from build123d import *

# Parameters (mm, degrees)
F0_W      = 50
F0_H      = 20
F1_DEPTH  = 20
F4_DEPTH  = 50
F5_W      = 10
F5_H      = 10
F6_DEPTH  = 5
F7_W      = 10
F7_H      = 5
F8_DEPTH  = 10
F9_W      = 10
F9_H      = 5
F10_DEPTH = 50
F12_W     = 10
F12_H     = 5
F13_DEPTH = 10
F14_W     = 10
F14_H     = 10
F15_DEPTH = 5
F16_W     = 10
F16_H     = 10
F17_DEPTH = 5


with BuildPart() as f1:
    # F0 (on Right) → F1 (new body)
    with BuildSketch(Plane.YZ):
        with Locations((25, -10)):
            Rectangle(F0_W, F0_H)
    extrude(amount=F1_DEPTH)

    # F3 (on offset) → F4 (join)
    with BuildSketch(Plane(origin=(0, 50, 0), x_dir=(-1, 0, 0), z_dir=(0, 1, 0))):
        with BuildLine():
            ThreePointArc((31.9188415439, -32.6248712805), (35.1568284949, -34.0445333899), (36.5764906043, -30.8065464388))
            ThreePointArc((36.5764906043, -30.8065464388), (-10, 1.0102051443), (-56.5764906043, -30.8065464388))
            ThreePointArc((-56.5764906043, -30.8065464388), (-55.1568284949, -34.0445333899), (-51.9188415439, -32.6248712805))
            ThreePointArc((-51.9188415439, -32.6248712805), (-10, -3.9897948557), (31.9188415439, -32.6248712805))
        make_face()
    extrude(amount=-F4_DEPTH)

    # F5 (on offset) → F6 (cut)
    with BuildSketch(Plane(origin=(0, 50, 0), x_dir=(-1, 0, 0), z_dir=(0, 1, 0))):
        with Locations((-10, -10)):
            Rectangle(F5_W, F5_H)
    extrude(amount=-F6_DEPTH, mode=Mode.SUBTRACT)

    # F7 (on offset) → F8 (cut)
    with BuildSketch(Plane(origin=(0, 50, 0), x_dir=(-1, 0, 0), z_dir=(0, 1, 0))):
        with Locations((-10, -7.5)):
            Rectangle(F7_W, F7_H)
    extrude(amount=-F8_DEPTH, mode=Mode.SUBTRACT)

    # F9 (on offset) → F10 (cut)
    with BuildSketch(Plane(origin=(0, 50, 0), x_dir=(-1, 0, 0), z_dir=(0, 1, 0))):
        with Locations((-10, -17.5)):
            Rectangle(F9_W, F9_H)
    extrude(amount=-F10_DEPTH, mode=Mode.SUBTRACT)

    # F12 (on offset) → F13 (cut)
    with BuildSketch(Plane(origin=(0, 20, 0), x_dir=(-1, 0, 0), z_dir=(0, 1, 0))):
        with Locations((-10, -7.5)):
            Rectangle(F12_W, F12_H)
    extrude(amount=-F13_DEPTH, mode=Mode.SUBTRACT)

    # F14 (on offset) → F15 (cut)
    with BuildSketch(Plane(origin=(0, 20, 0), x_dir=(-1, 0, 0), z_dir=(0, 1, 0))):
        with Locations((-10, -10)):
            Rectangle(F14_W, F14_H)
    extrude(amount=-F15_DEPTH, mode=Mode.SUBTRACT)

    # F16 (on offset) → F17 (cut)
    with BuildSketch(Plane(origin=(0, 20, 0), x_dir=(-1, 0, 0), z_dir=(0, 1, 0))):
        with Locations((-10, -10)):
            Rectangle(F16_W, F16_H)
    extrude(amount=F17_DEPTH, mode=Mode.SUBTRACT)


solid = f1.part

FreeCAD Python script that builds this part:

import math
import FreeCAD as App
import Part
import Sketcher
from FreeCAD import Vector


def add_polygon(sketch, points):
    """Adds a closed chain of lines whose ends are joined by coincident constraints."""
    first, n = sketch.GeometryCount, len(points)
    for a, b in zip(points, points[1:] + points[:1]):
        sketch.addGeometry(Part.LineSegment(App.Vector(*a, 0), App.Vector(*b, 0)), False)
    for i in range(n):
        sketch.addConstraint(Sketcher.Constraint("Coincident", first + i, 2, first + (i + 1) % n, 1))

doc = App.newDocument("Part")
body = doc.addObject("PartDesign::Body", "Body")

# Sketch on YZ plane
sketch1 = body.newObject("Sketcher::SketchObject", "Sketch")
sketch1.AttachmentSupport = (doc.getObject("YZ_Plane"), [""])
sketch1.MapMode = "FlatFace"
add_polygon(sketch1, [(0, 0), (0, -20), (50, -20), (50, 0)])  # lines 0-3
sketch1.addConstraint([
    Sketcher.Constraint("Vertical", 0),
    Sketcher.Constraint("Horizontal", 1),
    Sketcher.Constraint("Vertical", 2),
    Sketcher.Constraint("Horizontal", 3),
    Sketcher.Constraint("Coincident", 3, 2, -1, 1),
    Sketcher.Constraint("DistanceX", 1, 1, 1, 2, 50.0),
    Sketcher.Constraint("DistanceY", 0, 2, 0, 1, 20.0),
])
pad1 = body.newObject("PartDesign::Pad", "Pad")
pad1.Profile = sketch1
pad1.Length = 20

# Sketch on XZ plane
sketch2 = body.newObject("Sketcher::SketchObject", "Sketch001")
sketch2.AttachmentSupport = (doc.getObject("XZ_Plane"), [""])
sketch2.MapMode = "FlatFace"
sketch2.AttachmentOffset = App.Placement(Vector(0, 0, -50), App.Rotation())
sketch2.addGeometry([
    Part.ArcOfCircle(Part.Circle(Vector(-34.247666, -31.715709, 0), Vector(0, 0, 1), 2.5), math.radians(158.674554), math.radians(338.674554)),
    Part.ArcOfCircle(Part.Circle(Vector(10, -48.989795, 0), Vector(0, 0, 1), 50), math.radians(21.325446), math.radians(158.674554)),
    Part.ArcOfCircle(Part.Circle(Vector(54.247666, -31.715709, 0), Vector(0, 0, 1), 2.5), math.radians(-158.674554), math.radians(21.325446)),
    Part.ArcOfCircle(Part.Circle(Vector(10, -48.989795, 0), Vector(0, 0, 1), 45), math.radians(21.325446), math.radians(158.674554)),
], False)
sketch2.addConstraint([
    Sketcher.Constraint("Tangent", 0, 1, 1, 2),
    Sketcher.Constraint("Tangent", 1, 1, 2, 2),
    Sketcher.Constraint("Tangent", 2, 1, 3, 1),
    Sketcher.Constraint("Tangent", 3, 2, 0, 2),
    Sketcher.Constraint("Coincident", 3, 3, 1, 3),
    Sketcher.Constraint("Horizontal", 0, 3, 2, 3),
    Sketcher.Constraint("Radius", 1, 50.0),
    Sketcher.Constraint("Radius", 3, 45.0),
    Sketcher.Constraint("DistanceX", -1, 1, 1, 3, 10.0),
    Sketcher.Constraint("DistanceY", 0, 3, -1, 1, 31.715709),
    Sketcher.Constraint("DistanceX", 0, 1, -1, 1, 36.576491),
])
pad2 = body.newObject("PartDesign::Pad", "Pad001")
pad2.Profile = sketch2
pad2.Length = 50

# Sketch on XZ plane
sketch3 = body.newObject("Sketcher::SketchObject", "Sketch002")
sketch3.AttachmentSupport = (doc.getObject("XZ_Plane"), [""])
sketch3.MapMode = "FlatFace"
sketch3.AttachmentOffset = App.Placement(Vector(0, 0, -50), App.Rotation())
add_polygon(sketch3, [(15, -5), (15, -15), (5, -15), (5, -5)])  # lines 0-3
sketch3.addConstraint([
    Sketcher.Constraint("Vertical", 0),
    Sketcher.Constraint("Horizontal", 1),
    Sketcher.Constraint("Vertical", 2),
    Sketcher.Constraint("Horizontal", 3),
    Sketcher.Constraint("Equal", 3, 0),
    Sketcher.Constraint("DistanceX", 1, 2, 1, 1, 10.0),
    Sketcher.Constraint("DistanceX", -1, 1, 0, 2, 15.0),
    Sketcher.Constraint("DistanceY", 0, 2, -1, 1, 15.0),
])
pocket1 = body.newObject("PartDesign::Pocket", "Pocket")
pocket1.Profile = sketch3
pocket1.Length = 5
pocket1.Reversed = True

# Sketch on XZ plane
sketch4 = body.newObject("Sketcher::SketchObject", "Sketch003")
sketch4.AttachmentSupport = (doc.getObject("XZ_Plane"), [""])
sketch4.MapMode = "FlatFace"
sketch4.AttachmentOffset = App.Placement(Vector(0, 0, -50), App.Rotation())
add_polygon(sketch4, [(15, -5), (15, -10), (5, -10), (5, -5)])  # lines 0-3
sketch4.addConstraint([
    Sketcher.Constraint("Vertical", 0),
    Sketcher.Constraint("Horizontal", 1),
    Sketcher.Constraint("Vertical", 2),
    Sketcher.Constraint("Horizontal", 3),
    Sketcher.Constraint("DistanceX", 1, 2, 1, 1, 10.0),
    Sketcher.Constraint("DistanceY", 0, 2, 0, 1, 5.0),
    Sketcher.Constraint("DistanceX", -1, 1, 0, 2, 15.0),
    Sketcher.Constraint("DistanceY", 0, 2, -1, 1, 10.0),
])
pocket2 = body.newObject("PartDesign::Pocket", "Pocket001")
pocket2.Profile = sketch4
pocket2.Length = 10
pocket2.Reversed = True

# Sketch on XZ plane
sketch5 = body.newObject("Sketcher::SketchObject", "Sketch004")
sketch5.AttachmentSupport = (doc.getObject("XZ_Plane"), [""])
sketch5.MapMode = "FlatFace"
sketch5.AttachmentOffset = App.Placement(Vector(0, 0, -50), App.Rotation())
add_polygon(sketch5, [(15, -15), (15, -20), (5, -20), (5, -15)])  # lines 0-3
sketch5.addConstraint([
    Sketcher.Constraint("Vertical", 0),
    Sketcher.Constraint("Horizontal", 1),
    Sketcher.Constraint("Vertical", 2),
    Sketcher.Constraint("Horizontal", 3),
    Sketcher.Constraint("DistanceX", 1, 2, 1, 1, 10.0),
    Sketcher.Constraint("DistanceY", 0, 2, 0, 1, 5.0),
    Sketcher.Constraint("DistanceX", -1, 1, 0, 2, 15.0),
    Sketcher.Constraint("DistanceY", 0, 2, -1, 1, 20.0),
])
pocket3 = body.newObject("PartDesign::Pocket", "Pocket002")
pocket3.Profile = sketch5
pocket3.Length = 50
pocket3.Reversed = True

# Sketch on XZ plane
sketch6 = body.newObject("Sketcher::SketchObject", "Sketch005")
sketch6.AttachmentSupport = (doc.getObject("XZ_Plane"), [""])
sketch6.MapMode = "FlatFace"
sketch6.AttachmentOffset = App.Placement(Vector(0, 0, -20), App.Rotation())
add_polygon(sketch6, [(15, -5), (15, -10), (5, -10), (5, -5)])  # lines 0-3
sketch6.addConstraint([
    Sketcher.Constraint("Vertical", 0),
    Sketcher.Constraint("Horizontal", 1),
    Sketcher.Constraint("Vertical", 2),
    Sketcher.Constraint("Horizontal", 3),
    Sketcher.Constraint("DistanceX", 1, 2, 1, 1, 10.0),
    Sketcher.Constraint("DistanceY", 0, 2, 0, 1, 5.0),
    Sketcher.Constraint("DistanceX", -1, 1, 0, 2, 15.0),
    Sketcher.Constraint("DistanceY", 0, 2, -1, 1, 10.0),
])
pocket4 = body.newObject("PartDesign::Pocket", "Pocket003")
pocket4.Profile = sketch6
pocket4.Length = 10
pocket4.Reversed = True

# Sketch on XZ plane
sketch7 = body.newObject("Sketcher::SketchObject", "Sketch006")
sketch7.AttachmentSupport = (doc.getObject("XZ_Plane"), [""])
sketch7.MapMode = "FlatFace"
sketch7.AttachmentOffset = App.Placement(Vector(0, 0, -20), App.Rotation())
add_polygon(sketch7, [(15, -5), (15, -15), (5, -15), (5, -5)])  # lines 0-3
sketch7.addConstraint([
    Sketcher.Constraint("Vertical", 0),
    Sketcher.Constraint("Horizontal", 1),
    Sketcher.Constraint("Vertical", 2),
    Sketcher.Constraint("Horizontal", 3),
    Sketcher.Constraint("Equal", 3, 0),
    Sketcher.Constraint("DistanceX", 1, 2, 1, 1, 10.0),
    Sketcher.Constraint("DistanceX", -1, 1, 0, 2, 15.0),
    Sketcher.Constraint("DistanceY", 0, 2, -1, 1, 15.0),
])
pocket5 = body.newObject("PartDesign::Pocket", "Pocket004")
pocket5.Profile = sketch7
pocket5.Length = 5
pocket5.Reversed = True

# Sketch on XZ plane
sketch8 = body.newObject("Sketcher::SketchObject", "Sketch007")
sketch8.AttachmentSupport = (doc.getObject("XZ_Plane"), [""])
sketch8.MapMode = "FlatFace"
sketch8.AttachmentOffset = App.Placement(Vector(0, 0, -20), App.Rotation())
add_polygon(sketch8, [(15, -5), (15, -15), (5, -15), (5, -5)])  # lines 0-3
sketch8.addConstraint([
    Sketcher.Constraint("Vertical", 0),
    Sketcher.Constraint("Horizontal", 1),
    Sketcher.Constraint("Vertical", 2),
    Sketcher.Constraint("Horizontal", 3),
    Sketcher.Constraint("Equal", 3, 0),
    Sketcher.Constraint("DistanceX", 1, 2, 1, 1, 10.0),
    Sketcher.Constraint("DistanceX", -1, 1, 0, 2, 15.0),
    Sketcher.Constraint("DistanceY", 0, 2, -1, 1, 15.0),
])
pocket6 = body.newObject("PartDesign::Pocket", "Pocket005")
pocket6.Profile = sketch8
pocket6.Length = 5

doc.recompute()
